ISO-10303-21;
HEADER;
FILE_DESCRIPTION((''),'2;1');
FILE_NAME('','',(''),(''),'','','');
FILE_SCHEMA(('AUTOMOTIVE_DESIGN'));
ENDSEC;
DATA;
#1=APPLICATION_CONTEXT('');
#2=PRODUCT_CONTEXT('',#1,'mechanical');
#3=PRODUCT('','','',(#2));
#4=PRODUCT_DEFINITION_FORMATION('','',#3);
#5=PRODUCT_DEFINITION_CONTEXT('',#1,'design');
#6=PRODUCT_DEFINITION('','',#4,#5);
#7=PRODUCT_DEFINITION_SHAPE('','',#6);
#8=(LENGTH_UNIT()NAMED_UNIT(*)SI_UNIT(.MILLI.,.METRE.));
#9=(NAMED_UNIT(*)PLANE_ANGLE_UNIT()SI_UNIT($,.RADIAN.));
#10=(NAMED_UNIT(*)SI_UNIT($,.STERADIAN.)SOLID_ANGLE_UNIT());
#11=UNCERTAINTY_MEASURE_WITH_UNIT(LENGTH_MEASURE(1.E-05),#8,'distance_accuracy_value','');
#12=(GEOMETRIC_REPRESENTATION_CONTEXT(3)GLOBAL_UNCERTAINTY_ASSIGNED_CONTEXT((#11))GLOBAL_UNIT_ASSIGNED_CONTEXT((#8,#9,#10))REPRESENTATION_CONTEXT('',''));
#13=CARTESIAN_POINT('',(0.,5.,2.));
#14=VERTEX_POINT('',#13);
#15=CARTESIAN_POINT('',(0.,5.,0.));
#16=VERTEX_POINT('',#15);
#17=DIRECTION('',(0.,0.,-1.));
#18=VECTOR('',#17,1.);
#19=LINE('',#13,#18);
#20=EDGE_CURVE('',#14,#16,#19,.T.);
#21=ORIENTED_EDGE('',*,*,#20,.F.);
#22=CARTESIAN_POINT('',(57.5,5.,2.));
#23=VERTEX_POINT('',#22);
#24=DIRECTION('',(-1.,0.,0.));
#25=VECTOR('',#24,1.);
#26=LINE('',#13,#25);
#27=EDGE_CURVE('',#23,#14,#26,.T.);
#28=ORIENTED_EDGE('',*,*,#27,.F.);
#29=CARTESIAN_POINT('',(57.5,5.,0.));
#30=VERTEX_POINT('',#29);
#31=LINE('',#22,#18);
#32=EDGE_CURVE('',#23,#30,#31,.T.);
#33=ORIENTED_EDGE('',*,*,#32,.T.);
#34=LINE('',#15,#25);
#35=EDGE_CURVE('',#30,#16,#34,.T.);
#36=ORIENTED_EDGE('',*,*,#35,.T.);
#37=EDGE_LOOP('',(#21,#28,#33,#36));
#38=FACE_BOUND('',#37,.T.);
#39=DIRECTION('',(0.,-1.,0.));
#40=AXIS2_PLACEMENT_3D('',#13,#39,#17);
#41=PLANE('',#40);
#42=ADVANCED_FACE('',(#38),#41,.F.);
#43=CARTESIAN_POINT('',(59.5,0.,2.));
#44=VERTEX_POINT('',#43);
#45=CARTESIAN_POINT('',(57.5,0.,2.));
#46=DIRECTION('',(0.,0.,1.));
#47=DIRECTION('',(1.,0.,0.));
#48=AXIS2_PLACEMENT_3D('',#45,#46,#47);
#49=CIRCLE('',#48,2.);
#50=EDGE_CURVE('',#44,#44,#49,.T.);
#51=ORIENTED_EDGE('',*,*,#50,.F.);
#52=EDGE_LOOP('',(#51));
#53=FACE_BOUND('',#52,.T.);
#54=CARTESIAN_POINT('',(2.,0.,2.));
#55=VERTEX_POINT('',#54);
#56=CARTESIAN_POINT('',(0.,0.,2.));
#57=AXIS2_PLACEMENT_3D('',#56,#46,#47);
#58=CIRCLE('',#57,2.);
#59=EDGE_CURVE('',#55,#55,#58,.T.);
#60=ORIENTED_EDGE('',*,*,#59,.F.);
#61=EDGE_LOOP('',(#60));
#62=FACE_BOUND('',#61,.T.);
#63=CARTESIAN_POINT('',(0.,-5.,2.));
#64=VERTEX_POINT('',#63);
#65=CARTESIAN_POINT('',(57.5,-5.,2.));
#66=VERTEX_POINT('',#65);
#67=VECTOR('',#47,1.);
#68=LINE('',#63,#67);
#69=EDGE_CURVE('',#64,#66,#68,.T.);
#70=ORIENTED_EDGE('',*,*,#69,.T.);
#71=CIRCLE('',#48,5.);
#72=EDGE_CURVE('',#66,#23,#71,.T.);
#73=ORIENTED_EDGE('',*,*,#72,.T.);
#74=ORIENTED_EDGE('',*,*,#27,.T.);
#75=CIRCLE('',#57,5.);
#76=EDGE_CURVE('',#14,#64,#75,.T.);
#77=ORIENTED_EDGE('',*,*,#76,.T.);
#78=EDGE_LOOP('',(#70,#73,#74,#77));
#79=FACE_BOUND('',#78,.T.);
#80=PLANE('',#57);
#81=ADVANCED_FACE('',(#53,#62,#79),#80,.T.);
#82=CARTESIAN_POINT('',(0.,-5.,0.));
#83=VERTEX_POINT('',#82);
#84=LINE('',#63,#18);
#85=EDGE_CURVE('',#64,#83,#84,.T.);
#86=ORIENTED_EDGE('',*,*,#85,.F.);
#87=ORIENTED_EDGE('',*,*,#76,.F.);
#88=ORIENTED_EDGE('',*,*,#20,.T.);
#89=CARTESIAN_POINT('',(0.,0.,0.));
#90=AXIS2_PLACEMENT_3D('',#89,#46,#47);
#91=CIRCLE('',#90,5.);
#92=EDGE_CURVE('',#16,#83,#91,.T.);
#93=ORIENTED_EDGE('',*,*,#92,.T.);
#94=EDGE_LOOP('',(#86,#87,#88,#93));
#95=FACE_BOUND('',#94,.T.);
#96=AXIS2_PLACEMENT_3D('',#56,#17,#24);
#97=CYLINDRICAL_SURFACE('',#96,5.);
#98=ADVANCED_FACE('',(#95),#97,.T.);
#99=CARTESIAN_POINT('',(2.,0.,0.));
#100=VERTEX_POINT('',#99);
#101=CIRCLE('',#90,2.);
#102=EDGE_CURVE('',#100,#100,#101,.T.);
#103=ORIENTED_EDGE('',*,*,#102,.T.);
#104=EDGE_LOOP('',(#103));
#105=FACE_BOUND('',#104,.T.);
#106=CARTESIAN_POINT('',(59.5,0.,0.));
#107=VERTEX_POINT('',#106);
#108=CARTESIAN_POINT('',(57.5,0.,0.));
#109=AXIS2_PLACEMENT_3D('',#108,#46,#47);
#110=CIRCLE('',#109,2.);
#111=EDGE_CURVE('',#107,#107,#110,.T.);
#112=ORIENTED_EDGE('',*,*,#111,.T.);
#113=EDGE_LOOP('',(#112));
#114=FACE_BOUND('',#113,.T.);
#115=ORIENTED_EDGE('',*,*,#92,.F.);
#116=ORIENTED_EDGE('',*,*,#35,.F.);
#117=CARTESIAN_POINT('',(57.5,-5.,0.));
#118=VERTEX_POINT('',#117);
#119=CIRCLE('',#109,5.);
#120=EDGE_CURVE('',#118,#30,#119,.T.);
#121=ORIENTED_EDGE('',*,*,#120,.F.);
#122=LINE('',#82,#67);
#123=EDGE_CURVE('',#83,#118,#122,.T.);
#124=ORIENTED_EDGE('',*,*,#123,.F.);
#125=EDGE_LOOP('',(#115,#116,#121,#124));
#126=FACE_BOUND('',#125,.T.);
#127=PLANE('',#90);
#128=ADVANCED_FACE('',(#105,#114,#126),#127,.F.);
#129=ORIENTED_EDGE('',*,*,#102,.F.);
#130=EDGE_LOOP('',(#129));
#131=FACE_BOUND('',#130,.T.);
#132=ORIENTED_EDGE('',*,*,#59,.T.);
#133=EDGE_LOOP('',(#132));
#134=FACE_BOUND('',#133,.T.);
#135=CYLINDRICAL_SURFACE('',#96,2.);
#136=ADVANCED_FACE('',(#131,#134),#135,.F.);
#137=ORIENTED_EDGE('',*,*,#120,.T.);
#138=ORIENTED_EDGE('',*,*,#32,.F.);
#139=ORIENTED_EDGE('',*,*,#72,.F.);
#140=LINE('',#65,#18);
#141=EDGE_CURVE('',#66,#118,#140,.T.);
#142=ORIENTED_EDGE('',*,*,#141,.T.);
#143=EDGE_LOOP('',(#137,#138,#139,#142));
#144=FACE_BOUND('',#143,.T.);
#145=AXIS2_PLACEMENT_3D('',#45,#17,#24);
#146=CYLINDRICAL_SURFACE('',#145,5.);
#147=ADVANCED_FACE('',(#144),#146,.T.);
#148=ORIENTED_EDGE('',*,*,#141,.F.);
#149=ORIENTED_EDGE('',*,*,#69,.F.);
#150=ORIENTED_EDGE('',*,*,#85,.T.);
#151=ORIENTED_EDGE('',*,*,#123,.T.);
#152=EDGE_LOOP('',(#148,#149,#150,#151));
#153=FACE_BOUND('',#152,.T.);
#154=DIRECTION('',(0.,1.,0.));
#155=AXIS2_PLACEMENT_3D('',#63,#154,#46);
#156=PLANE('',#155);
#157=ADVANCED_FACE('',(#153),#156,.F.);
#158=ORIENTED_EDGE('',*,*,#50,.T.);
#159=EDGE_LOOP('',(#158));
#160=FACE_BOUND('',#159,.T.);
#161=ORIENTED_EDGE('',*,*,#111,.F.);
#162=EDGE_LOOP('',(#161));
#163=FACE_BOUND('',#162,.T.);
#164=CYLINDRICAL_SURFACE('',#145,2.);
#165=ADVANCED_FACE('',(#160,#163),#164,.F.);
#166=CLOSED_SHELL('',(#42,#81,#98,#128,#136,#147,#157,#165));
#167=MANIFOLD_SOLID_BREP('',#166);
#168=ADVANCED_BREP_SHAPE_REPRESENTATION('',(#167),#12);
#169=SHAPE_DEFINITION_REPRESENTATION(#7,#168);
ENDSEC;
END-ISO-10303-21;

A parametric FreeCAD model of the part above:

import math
import FreeCAD as App
import Part
import Sketcher

V = App.Vector

doc = App.newDocument("Part")
body = doc.addObject("PartDesign::Body", "Body")

# Sketch on XY plane
sketch1 = body.newObject("Sketcher::SketchObject", "Sketch")
sketch1.AttachmentSupport = (doc.getObject("XY_Plane"), [""])
sketch1.MapMode = "FlatFace"
sketch1.addGeometry([
    Part.LineSegment(V(57.5, 5, 0), V(0, 5, 0)),  # 0
    Part.ArcOfCircle(Part.Circle(V(0, 0, 0), V(0, 0, 1), 5), math.radians(90), math.radians(270)),  # 1
    Part.LineSegment(V(0, -5, 0), V(57.5, -5, 0)),  # 2
    Part.ArcOfCircle(Part.Circle(V(57.5, 0, 0), V(0, 0, 1), 5), math.radians(-90), math.radians(90)),  # 3
    Part.Circle(V(57.5, 0, 0), V(0, 0, 1), 2),  # 4
    Part.Circle(V(0, 0, 0), V(0, 0, 1), 2),  # 5
], False)
sketch1.addConstraint([
    Sketcher.Constraint("Tangent", 0, 2, 1, 1),
    Sketcher.Constraint("Tangent", 1, 2, 2, 1),
    Sketcher.Constraint("Tangent", 2, 2, 3, 1),
    Sketcher.Constraint("Tangent", 3, 2, 0, 1),
    Sketcher.Constraint("Horizontal", 0),
    Sketcher.Constraint("Horizontal", 2),
    Sketcher.Constraint("Coincident", 1, 3, -1, 1),
    Sketcher.Constraint("Coincident", 5, 3, -1, 1),
    Sketcher.Constraint("Coincident", 4, 3, 3, 3),
    Sketcher.Constraint("Equal", 4, 5),
    Sketcher.Constraint("Diameter", 4, 4.0),
    Sketcher.Constraint("Radius", 1, 5.0),
    Sketcher.Constraint("DistanceX", 0, 2, 0, 1, 57.5),
])
pad1 = body.newObject("PartDesign::Pad", "Pad")
pad1.Profile = sketch1
pad1.Length = 2

doc.recompute()
